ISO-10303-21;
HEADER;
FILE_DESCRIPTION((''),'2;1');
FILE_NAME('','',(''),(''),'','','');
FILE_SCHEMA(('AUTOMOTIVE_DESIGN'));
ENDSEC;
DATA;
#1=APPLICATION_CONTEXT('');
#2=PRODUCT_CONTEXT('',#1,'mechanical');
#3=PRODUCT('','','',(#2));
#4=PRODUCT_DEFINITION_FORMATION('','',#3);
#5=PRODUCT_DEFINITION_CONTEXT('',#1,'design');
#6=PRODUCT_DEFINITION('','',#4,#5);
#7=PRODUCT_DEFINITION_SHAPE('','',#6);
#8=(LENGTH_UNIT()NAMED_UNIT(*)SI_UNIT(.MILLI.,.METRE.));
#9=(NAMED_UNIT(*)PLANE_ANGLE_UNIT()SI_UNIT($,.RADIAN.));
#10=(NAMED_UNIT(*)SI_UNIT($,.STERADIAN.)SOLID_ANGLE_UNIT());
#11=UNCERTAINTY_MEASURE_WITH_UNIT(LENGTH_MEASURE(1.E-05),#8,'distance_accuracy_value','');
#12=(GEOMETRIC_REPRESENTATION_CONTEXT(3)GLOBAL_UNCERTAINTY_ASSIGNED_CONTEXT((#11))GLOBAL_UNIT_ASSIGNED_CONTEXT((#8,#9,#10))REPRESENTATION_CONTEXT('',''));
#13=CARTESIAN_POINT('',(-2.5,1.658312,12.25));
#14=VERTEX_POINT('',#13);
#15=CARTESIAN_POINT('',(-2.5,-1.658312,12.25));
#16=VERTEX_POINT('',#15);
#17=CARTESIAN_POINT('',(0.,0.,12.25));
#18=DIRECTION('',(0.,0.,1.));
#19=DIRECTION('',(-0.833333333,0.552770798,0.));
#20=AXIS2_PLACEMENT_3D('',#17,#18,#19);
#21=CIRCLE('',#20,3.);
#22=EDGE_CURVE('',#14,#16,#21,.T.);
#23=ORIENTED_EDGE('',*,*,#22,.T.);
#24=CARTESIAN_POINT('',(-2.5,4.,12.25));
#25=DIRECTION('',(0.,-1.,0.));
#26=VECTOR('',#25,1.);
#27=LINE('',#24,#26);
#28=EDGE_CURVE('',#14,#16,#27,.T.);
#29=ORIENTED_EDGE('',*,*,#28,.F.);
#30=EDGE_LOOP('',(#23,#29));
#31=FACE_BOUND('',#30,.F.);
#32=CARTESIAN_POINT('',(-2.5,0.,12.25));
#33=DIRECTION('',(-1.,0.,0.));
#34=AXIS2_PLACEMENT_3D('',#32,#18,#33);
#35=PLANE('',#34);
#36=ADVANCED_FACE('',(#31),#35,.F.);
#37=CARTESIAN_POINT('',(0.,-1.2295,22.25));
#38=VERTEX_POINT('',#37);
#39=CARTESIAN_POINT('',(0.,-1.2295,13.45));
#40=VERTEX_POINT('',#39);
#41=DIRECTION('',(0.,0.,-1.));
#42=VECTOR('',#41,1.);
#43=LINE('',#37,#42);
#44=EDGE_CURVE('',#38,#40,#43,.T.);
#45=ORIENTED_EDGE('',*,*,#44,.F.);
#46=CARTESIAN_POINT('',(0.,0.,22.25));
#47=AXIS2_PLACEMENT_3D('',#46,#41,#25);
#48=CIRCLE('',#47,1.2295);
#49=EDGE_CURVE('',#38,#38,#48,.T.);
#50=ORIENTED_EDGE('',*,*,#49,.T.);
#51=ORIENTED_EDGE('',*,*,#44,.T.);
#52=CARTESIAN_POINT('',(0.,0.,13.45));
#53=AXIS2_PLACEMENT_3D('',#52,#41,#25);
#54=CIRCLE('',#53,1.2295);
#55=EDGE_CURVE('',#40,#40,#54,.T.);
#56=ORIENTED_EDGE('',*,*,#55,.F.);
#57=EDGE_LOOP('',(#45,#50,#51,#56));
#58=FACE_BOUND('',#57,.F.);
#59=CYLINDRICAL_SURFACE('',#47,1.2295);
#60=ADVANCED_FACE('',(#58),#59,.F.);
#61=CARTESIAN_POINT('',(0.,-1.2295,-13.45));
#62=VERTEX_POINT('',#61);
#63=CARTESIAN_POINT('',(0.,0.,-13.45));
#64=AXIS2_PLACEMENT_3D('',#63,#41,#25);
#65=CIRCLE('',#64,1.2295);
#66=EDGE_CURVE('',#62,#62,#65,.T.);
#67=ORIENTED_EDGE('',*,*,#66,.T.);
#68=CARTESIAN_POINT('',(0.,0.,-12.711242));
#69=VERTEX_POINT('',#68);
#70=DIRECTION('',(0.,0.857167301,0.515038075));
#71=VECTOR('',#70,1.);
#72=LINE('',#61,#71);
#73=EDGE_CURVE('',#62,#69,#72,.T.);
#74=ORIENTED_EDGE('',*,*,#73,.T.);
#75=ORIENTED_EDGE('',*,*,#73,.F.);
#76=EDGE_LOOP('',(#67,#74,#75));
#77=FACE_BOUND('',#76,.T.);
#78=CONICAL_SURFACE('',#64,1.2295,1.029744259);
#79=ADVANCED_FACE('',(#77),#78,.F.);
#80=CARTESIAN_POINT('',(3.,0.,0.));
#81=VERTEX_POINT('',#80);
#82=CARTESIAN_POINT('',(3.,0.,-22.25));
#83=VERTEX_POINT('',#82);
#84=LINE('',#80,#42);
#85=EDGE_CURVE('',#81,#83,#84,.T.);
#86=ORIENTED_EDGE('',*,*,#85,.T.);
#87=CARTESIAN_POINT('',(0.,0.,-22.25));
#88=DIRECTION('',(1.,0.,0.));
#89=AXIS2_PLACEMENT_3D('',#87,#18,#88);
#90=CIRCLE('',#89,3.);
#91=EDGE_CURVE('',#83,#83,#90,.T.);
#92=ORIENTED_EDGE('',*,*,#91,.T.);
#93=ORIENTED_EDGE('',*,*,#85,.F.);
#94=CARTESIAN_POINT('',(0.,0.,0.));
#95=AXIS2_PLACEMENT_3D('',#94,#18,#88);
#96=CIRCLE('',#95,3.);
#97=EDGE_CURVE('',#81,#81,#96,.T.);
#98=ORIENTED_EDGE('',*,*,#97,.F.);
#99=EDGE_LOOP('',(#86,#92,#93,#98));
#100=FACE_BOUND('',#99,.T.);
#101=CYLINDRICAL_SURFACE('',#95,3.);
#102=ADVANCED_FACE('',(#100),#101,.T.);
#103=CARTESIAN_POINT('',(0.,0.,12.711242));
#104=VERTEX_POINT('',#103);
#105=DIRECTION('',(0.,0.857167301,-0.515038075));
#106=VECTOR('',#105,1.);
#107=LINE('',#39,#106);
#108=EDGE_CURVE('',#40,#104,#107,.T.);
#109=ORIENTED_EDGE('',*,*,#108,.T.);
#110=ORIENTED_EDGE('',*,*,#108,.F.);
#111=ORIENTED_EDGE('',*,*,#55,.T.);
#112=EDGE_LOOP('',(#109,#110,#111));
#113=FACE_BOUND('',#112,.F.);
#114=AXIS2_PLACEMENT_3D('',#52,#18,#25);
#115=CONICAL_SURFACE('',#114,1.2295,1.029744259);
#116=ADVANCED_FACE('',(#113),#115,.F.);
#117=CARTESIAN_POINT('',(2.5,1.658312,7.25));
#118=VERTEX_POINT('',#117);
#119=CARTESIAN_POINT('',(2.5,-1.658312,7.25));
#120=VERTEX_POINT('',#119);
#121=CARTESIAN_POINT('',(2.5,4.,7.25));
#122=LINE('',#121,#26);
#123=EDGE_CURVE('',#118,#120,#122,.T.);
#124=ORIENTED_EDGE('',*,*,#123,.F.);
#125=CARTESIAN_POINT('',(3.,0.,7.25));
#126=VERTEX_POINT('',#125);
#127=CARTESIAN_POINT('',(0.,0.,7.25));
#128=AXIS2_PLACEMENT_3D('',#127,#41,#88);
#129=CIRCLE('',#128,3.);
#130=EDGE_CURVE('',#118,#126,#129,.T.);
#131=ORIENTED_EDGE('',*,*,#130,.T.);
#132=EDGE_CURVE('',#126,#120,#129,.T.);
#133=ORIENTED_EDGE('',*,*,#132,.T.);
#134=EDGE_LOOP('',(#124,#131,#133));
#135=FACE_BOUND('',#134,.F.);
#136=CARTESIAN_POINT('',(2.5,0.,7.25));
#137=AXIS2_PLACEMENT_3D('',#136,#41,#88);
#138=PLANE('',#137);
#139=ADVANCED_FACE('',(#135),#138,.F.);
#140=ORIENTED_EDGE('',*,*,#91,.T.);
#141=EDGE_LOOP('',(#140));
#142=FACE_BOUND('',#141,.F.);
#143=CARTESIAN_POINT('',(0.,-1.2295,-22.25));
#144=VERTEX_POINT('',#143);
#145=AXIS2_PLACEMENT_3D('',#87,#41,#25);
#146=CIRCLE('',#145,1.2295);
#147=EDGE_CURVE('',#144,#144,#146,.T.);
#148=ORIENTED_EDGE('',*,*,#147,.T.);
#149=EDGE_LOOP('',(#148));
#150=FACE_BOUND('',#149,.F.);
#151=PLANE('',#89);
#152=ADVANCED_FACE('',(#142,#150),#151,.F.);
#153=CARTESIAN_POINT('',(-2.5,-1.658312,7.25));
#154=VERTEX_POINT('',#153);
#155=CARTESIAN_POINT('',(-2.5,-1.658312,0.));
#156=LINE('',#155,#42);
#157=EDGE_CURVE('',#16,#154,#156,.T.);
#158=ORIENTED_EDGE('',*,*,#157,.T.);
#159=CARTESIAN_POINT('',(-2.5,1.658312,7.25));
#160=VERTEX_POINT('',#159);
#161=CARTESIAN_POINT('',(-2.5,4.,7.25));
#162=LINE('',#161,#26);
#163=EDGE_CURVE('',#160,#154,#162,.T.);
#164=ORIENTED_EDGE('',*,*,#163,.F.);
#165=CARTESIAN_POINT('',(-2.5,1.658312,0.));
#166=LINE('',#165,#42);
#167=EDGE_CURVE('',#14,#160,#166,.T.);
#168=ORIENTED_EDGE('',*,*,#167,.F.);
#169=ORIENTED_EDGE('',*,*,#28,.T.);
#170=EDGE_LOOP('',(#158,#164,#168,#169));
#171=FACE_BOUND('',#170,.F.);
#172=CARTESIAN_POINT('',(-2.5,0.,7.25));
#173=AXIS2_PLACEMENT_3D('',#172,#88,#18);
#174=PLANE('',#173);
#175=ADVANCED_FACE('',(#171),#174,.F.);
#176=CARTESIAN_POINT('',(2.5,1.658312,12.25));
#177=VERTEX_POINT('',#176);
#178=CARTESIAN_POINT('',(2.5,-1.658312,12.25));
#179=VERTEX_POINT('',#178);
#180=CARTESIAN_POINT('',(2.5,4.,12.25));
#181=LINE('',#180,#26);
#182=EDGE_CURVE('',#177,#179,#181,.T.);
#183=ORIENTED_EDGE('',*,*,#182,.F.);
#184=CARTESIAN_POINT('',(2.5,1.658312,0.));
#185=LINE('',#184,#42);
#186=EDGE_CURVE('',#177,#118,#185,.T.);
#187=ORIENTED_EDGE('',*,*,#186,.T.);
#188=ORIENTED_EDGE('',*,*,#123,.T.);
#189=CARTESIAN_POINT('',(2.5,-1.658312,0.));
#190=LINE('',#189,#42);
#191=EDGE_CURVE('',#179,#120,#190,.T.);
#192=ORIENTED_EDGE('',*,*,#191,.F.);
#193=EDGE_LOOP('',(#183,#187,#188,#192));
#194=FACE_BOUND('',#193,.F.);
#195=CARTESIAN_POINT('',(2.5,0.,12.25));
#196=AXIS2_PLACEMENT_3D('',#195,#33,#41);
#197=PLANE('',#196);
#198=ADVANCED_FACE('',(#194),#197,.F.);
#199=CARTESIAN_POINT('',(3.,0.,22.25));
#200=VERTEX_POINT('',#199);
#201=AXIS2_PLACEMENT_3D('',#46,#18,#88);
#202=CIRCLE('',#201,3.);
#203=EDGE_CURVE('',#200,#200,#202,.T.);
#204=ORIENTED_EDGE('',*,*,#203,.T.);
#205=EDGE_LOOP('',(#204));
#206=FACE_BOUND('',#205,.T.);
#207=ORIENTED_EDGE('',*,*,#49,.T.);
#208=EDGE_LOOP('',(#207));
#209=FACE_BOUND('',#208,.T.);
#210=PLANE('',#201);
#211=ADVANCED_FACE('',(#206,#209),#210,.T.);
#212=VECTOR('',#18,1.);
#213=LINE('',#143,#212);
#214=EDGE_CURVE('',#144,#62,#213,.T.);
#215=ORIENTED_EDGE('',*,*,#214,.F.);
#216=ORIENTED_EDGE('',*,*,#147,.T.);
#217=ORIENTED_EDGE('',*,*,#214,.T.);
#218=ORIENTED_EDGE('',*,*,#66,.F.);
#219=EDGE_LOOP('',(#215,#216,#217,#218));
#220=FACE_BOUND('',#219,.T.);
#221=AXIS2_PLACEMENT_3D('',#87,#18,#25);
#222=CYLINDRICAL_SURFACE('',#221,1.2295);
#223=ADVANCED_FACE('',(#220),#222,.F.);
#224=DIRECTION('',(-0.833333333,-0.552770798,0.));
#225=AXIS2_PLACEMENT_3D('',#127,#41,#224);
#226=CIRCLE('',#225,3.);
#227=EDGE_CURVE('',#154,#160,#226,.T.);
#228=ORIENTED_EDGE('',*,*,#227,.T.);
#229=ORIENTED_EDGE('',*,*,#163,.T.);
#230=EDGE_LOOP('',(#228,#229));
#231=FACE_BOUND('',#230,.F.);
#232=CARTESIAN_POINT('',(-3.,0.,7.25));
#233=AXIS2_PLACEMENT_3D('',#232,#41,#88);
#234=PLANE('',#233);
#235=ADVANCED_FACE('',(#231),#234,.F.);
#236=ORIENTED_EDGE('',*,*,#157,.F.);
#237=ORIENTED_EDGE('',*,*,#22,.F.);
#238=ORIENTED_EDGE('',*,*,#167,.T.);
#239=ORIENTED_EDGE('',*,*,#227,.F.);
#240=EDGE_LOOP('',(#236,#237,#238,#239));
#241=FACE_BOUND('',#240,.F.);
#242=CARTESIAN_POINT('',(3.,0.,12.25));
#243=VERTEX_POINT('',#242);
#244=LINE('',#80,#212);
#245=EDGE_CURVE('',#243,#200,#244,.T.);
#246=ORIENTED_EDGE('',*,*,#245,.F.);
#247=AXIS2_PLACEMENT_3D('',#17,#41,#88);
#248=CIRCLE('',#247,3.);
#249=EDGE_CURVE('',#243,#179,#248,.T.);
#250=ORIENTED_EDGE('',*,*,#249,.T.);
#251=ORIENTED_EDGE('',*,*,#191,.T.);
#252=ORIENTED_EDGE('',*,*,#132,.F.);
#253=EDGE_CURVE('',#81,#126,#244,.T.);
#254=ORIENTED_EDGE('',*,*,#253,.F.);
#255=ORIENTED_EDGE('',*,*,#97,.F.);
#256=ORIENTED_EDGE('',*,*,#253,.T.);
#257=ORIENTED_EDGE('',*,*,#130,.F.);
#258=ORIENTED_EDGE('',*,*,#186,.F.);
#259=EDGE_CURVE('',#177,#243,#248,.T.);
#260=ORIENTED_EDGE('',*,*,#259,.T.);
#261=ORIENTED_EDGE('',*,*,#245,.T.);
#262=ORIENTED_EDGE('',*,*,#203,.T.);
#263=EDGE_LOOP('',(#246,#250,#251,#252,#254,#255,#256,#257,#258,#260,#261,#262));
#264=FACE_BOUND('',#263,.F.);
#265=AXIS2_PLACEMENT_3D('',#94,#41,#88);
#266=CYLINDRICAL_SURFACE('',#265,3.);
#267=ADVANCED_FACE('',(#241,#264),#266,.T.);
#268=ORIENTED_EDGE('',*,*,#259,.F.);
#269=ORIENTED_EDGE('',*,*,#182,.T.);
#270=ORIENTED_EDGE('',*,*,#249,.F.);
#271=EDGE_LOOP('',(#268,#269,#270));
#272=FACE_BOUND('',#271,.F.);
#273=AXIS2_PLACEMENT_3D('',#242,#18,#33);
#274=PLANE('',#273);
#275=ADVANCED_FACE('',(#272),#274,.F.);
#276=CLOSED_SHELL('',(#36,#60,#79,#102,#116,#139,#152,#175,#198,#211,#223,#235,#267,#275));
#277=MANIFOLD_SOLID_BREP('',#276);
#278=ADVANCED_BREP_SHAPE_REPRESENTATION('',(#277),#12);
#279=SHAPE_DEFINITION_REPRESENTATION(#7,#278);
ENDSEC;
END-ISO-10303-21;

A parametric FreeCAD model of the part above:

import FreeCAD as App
import Part
import Sketcher
from FreeCAD import Vector


def add_polygon(sketch, points):
    """Adds a closed chain of lines whose ends are joined by coincident constraints."""
    first, n = sketch.GeometryCount, len(points)
    for a, b in zip(points, points[1:] + points[:1]):
        sketch.addGeometry(Part.LineSegment(App.Vector(*a, 0), App.Vector(*b, 0)), False)
    for i in range(n):
        sketch.addConstraint(Sketcher.Constraint("Coincident", first + i, 2, first + (i + 1) % n, 1))

doc = App.newDocument("Part")
body = doc.addObject("PartDesign::Body", "Body")

sketch1 = doc.addObject("Sketcher::SketchObject", "Sketch")
body.addObject(sketch1)
sketch1.AttachmentSupport = (doc.XY_Plane, [""])
sketch1.MapMode = "FlatFace"
sketch1.addGeometry(Part.Circle(Vector(0, 0, 0), Vector(0, 0, 1), 3), False)
sketch1.addConstraint([
    Sketcher.Constraint("Coincident", 0, 3, -1, 1),
    Sketcher.Constraint("Diameter", 0, 6.0),
])
pad1 = doc.addObject("PartDesign::Pad", "Pad")
body.addObject(pad1)
pad1.Profile = sketch1
pad1.Length = 44.5
pad1.Midplane = True

sketch2 = doc.addObject("Sketcher::SketchObject", "Sketch001")
body.addObject(sketch2)
sketch2.AttachmentSupport = (doc.XY_Plane, [""])
sketch2.MapMode = "FlatFace"
sketch2.AttachmentOffset = App.Placement(Vector(0, 0, 22.25), App.Rotation())
sketch2.addGeometry(Part.Circle(Vector(0, 0, 0), Vector(0, 0, 1), 1.2), False)
sketch2.addConstraint([
    Sketcher.Constraint("Coincident", 0, 3, -1, 1),
    Sketcher.Constraint("Diameter", 0, 2.459),
])
doc.recompute()
hole = doc.addObject("PartDesign::Hole", "Hole")
body.addObject(hole)
hole.Profile = sketch2
hole.ThreadType = "None"
hole.Diameter = 2.459
hole.DepthType = "Dimension"
hole.Depth = 8.8
hole.DrillPoint = "Angled"
hole.DrillPointAngle = 118

sketch3 = doc.addObject("Sketcher::SketchObject", "Sketch002")
body.addObject(sketch3)
sketch3.AttachmentSupport = (doc.XZ_Plane, [""])
sketch3.MapMode = "FlatFace"
add_polygon(sketch3, [(-2.5, 7.2), (-3, 7.2), (-3, 12.2), (-2.5, 12.2)])
add_polygon(sketch3, [(2.5, 12.2), (3, 12.2), (3, 7.2), (2.5, 7.2)])
sketch3.addConstraint([
    Sketcher.Constraint("Horizontal", 0),
    Sketcher.Constraint("Vertical", 1),
    Sketcher.Constraint("Horizontal", 2),
    Sketcher.Constraint("Vertical", 3),
    Sketcher.Constraint("Horizontal", 4),
    Sketcher.Constraint("Vertical", 5),
    Sketcher.Constraint("Horizontal", 6),
    Sketcher.Constraint("Vertical", 7),
    Sketcher.Constraint("Symmetric", 1, 2, 4, 2, -2),
    Sketcher.Constraint("Symmetric", 3, 2, 6, 2, -2),
    Sketcher.Constraint("DistanceY", 1, 1, 1, 2, 5.0),
    Sketcher.Constraint("DistanceX", 0, 2, 0, 1, 0.5),
    Sketcher.Constraint("DistanceX", 3, 2, 6, 2, 5.0),
    Sketcher.Constraint("DistanceY", -1, 1, 0, 2, 7.25),
])
pocket1 = doc.addObject("PartDesign::Pocket", "Pocket")
body.addObject(pocket1)
pocket1.Profile = sketch3
pocket1.Type = "ThroughAll"
pocket1.Midplane = True
doc.recompute()

mirrored = doc.addObject("PartDesign::Mirrored", "Mirrored")
body.addObject(mirrored)
mirrored.Originals = [hole]
mirrored.MirrorPlane = (doc.XY_Plane, [""])
body.Tip = mirrored

doc.recompute()
